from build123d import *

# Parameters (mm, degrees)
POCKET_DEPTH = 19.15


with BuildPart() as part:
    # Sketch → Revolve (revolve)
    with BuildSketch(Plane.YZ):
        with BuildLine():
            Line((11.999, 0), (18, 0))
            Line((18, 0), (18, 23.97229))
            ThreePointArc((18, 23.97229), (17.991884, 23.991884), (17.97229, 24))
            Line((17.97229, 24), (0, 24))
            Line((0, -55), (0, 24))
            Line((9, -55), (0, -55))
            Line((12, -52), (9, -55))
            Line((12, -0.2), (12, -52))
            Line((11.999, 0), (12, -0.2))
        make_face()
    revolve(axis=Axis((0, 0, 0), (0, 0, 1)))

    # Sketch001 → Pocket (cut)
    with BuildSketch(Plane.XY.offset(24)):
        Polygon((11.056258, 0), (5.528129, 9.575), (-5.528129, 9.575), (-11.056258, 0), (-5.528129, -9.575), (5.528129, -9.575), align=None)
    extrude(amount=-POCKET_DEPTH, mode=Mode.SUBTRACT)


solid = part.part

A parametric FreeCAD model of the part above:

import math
import FreeCAD as App
import Part
import Sketcher
Q = App.Units.Quantity


def add_polygon(sketch, points):
    """Adds a closed chain of lines whose ends are joined by coincident constraints."""
    first, n = sketch.GeometryCount, len(points)
    for a, b in zip(points, points[1:] + points[:1]):
        sketch.addGeometry(Part.LineSegment(App.Vector(*a, 0), App.Vector(*b, 0)), False)
    for i in range(n):
        sketch.addConstraint(Sketcher.Constraint("Coincident", first + i, 2, first + (i + 1) % n, 1))

doc = App.newDocument("Part")
body = doc.addObject("PartDesign::Body", "Body")

sketch1 = body.newObject("Sketcher::SketchObject", "Sketch")
sketch1.AttachmentSupport = (doc.getObject("YZ_Plane"), [""])
sketch1.MapMode = "FlatFace"
sketch1.addGeometry([
    Part.LineSegment(App.Vector(11.999, 0, 0), App.Vector(18, 0, 0)),
    Part.LineSegment(App.Vector(18, 0, 0), App.Vector(18, 23.972, 0)),
    Part.ArcOfCircle(Part.Circle(App.Vector(17.972, 23.972, 0), App.Vector(0, 0, 1), 0.028), math.radians(0), math.radians(90)),
    Part.LineSegment(App.Vector(17.972, 24, 0), App.Vector(0, 24, 0)),
    Part.LineSegment(App.Vector(0, 24, 0), App.Vector(0, -55, 0)),
    Part.LineSegment(App.Vector(0, -55, 0), App.Vector(9, -55, 0)),
    Part.LineSegment(App.Vector(9, -55, 0), App.Vector(12, -52, 0)),
    Part.LineSegment(App.Vector(12, -52, 0), App.Vector(12, -0.2, 0)),
    Part.LineSegment(App.Vector(12, -0.2, 0), App.Vector(11.999, 0, 0)),
], False)
sketch1.addConstraint([
    Sketcher.Constraint("Coincident", 0, 2, 1, 1),
    Sketcher.Constraint("Coincident", 1, 2, 2, 1),
    Sketcher.Constraint("Coincident", 2, 2, 3, 1),
    Sketcher.Constraint("Coincident", 3, 2, 4, 1),
    Sketcher.Constraint("Coincident", 4, 2, 5, 1),
    Sketcher.Constraint("Coincident", 5, 2, 6, 1),
    Sketcher.Constraint("Coincident", 6, 2, 7, 1),
    Sketcher.Constraint("Coincident", 7, 2, 8, 1),
    Sketcher.Constraint("Coincident", 8, 2, 0, 1),
    Sketcher.Constraint("Horizontal", 0),
    Sketcher.Constraint("Vertical", 1),
    Sketcher.Constraint("Horizontal", 3),
    Sketcher.Constraint("Vertical", 4),
    Sketcher.Constraint("Horizontal", 5),
    Sketcher.Constraint("Vertical", 7),
    Sketcher.Constraint("PointOnObject", 0, 2, -1),
    Sketcher.Constraint("PointOnObject", 3, 2, -2),
    Sketcher.Constraint("Horizontal", 2, 3, 1, 2),
    Sketcher.Constraint("DistanceX", 5, 1, 5, 2, Q("9 mm")),
    Sketcher.Constraint("DistanceY", 4, 2, 4, 1, Q("79 mm")),
    Sketcher.Constraint("Angle", 6, Q("45 deg")),
    Sketcher.Constraint("DistanceY", 7, 1, 7, 2, Q("51.8 mm")),
    Sketcher.Constraint("DistanceX", -1, 1, 0, 2, Q("18 mm")),
    Sketcher.Constraint("DistanceY", -1, 1, 2, 2, Q("24 mm")),
    Sketcher.Constraint("DistanceX", -1, 1, 6, 2, Q("12 mm")),
    Sketcher.Constraint("DistanceX", 0, 1, 0, 2, Q("6.001 mm")),
    Sketcher.Constraint("Radius", 2, Q("0.02771 mm")),
    Sketcher.Constraint("DistanceX", 3, 2, 3, 1, Q("17.97229 mm")),
])
revolution = body.newObject("PartDesign::Revolution", "Revolution")
revolution.Profile = sketch1
revolution.ReferenceAxis = (sketch1, ["V_Axis"])
revolution.Angle = 360

sketch2 = body.newObject("Sketcher::SketchObject", "Sketch001")
sketch2.AttachmentSupport = (doc.getObject("XY_Plane"), [""])
sketch2.MapMode = "FlatFace"
sketch2.AttachmentOffset = App.Placement(App.Vector(0, 0, 24), App.Rotation())
add_polygon(sketch2, [(11, 0), (6, 10), (-6, 10), (-11, 0), (-6, -10), (6, -10)])
sketch2.addConstraint([
    Sketcher.Constraint("Horizontal", 1),
    Sketcher.Constraint("Horizontal", 4),
    Sketcher.Constraint("Symmetric", 0, 2, 3, 2, -1, 1),
    Sketcher.Constraint("Symmetric", 2, 2, 5, 2, -1, 1),
    Sketcher.Constraint("PointOnObject", 2, 2, -1),
    Sketcher.Constraint("Parallel", 2, 5),
    Sketcher.Constraint("Vertical", 1, 2, 3, 2),
    Sketcher.Constraint("Angle", 0, Q("120.000001 deg")),
    Sketcher.Constraint("DistanceY", 3, 2, 1, 2, Q("19.15 mm")),
    Sketcher.Constraint("DistanceX", 1, 2, 1, 1, Q("11.056258 mm")),
])
pocket1 = body.newObject("PartDesign::Pocket", "Pocket")
pocket1.Profile = sketch2
pocket1.Length = 19.15

doc.recompute()
